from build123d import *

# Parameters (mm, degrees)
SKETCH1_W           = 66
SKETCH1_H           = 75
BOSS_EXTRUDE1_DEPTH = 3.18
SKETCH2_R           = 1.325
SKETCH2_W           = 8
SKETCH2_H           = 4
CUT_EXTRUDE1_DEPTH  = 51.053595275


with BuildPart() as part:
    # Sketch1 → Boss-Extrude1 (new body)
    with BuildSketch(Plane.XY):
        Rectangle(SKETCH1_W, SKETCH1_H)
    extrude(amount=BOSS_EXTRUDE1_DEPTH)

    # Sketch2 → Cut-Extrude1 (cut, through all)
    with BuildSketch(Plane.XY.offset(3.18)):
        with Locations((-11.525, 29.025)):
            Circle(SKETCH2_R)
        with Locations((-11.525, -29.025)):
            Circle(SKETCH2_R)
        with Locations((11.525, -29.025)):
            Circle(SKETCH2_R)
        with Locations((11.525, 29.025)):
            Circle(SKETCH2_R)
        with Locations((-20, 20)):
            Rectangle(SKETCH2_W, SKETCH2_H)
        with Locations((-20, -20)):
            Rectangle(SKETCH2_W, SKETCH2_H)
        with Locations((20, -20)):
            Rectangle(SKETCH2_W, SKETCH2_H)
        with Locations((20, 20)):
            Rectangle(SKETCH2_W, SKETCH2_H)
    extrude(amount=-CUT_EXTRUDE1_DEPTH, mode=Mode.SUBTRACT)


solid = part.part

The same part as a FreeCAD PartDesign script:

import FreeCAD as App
import Part
import Sketcher
from FreeCAD import Vector


def add_polygon(sketch, points):
    """Adds a closed chain of lines whose ends are joined by coincident constraints."""
    first, n = sketch.GeometryCount, len(points)
    for a, b in zip(points, points[1:] + points[:1]):
        sketch.addGeometry(Part.LineSegment(App.Vector(*a, 0), App.Vector(*b, 0)), False)
    for i in range(n):
        sketch.addConstraint(Sketcher.Constraint("Coincident", first + i, 2, first + (i + 1) % n, 1))

doc = App.newDocument("Part")
body = doc.addObject("PartDesign::Body", "Body")

sketch1 = doc.addObject("Sketcher::SketchObject", "Sketch")
body.addObject(sketch1)
sketch1.AttachmentSupport = (doc.XY_Plane, [""])
sketch1.MapMode = "FlatFace"
add_polygon(sketch1, [(-33, 38), (-33, -38), (33, -38), (33, 38)])
sketch1.addConstraint([
    Sketcher.Constraint("Vertical", 0),
    Sketcher.Constraint("Horizontal", 1),
    Sketcher.Constraint("Vertical", 2),
    Sketcher.Constraint("Horizontal", 3),
    Sketcher.Constraint("Symmetric", 0, 2, 2, 2, -1, 1),
    Sketcher.Constraint("DistanceX", 1, 1, 1, 2, 66.0),
    Sketcher.Constraint("DistanceY", 0, 2, 0, 1, 75.0),
])
pad1 = doc.addObject("PartDesign::Pad", "Pad")
body.addObject(pad1)
pad1.Profile = sketch1
pad1.Length = 3.18

sketch2 = doc.addObject("Sketcher::SketchObject", "Sketch001")
body.addObject(sketch2)
sketch2.AttachmentSupport = (doc.XY_Plane, [""])
sketch2.MapMode = "FlatFace"
sketch2.AttachmentOffset = App.Placement(Vector(0, 0, 3.18), App.Rotation())
sketch2.addGeometry(Part.Circle(Vector(-11.5, 29, 0), Vector(0, 0, 1), 1.3), False)
sketch2.addGeometry(Part.Circle(Vector(-11.5, -29, 0), Vector(0, 0, 1), 1.3), False)
sketch2.addGeometry(Part.Circle(Vector(11.5, -29, 0), Vector(0, 0, 1), 1.3), False)
sketch2.addGeometry(Part.Circle(Vector(11.5, 29, 0), Vector(0, 0, 1), 1.3), False)
add_polygon(sketch2, [(-24, 22), (-24, 18), (-16, 18), (-16, 22)])
add_polygon(sketch2, [(-24, -18), (-24, -22), (-16, -22), (-16, -18)])
add_polygon(sketch2, [(16, -18), (16, -22), (24, -22), (24, -18)])
add_polygon(sketch2, [(16, 22), (16, 18), (24, 18), (24, 22)])
sketch2.addConstraint([
    Sketcher.Constraint("Vertical", 4),
    Sketcher.Constraint("Horizontal", 5),
    Sketcher.Constraint("Vertical", 6),
    Sketcher.Constraint("Horizontal", 7),
    Sketcher.Constraint("Vertical", 8),
    Sketcher.Constraint("Horizontal", 9),
    Sketcher.Constraint("Vertical", 10),
    Sketcher.Constraint("Horizontal", 11),
    Sketcher.Constraint("Vertical", 12),
    Sketcher.Constraint("Horizontal", 13),
    Sketcher.Constraint("Vertical", 14),
    Sketcher.Constraint("Horizontal", 15),
    Sketcher.Constraint("Vertical", 16),
    Sketcher.Constraint("Horizontal", 17),
    Sketcher.Constraint("Vertical", 18),
    Sketcher.Constraint("Horizontal", 19),
    Sketcher.Constraint("Equal", 0, 1),
    Sketcher.Constraint("Equal", 1, 2),
    Sketcher.Constraint("Equal", 2, 3),
    Sketcher.Constraint("Symmetric", 0, 3, 2, 3, -1, 1),
    Sketcher.Constraint("Symmetric", 1, 3, 3, 3, -1, 1),
    Sketcher.Constraint("Symmetric", 6, 2, 12, 2, -1, 1),
    Sketcher.Constraint("Symmetric", 4, 2, 14, 2, -1, 1),
    Sketcher.Constraint("Symmetric", 10, 2, 16, 2, -1, 1),
    Sketcher.Constraint("Symmetric", 8, 2, 18, 2, -1, 1),
    Sketcher.Constraint("Symmetric", 1, 3, 2, 3, -2),
    Sketcher.Constraint("Symmetric", 9, 2, 12, 2, -2),
    Sketcher.Constraint("Symmetric", 11, 2, 14, 2, -2),
    Sketcher.Constraint("Diameter", 0, 2.65),
    Sketcher.Constraint("DistanceX", 5, 1, 5, 2, 8.0),
    Sketcher.Constraint("DistanceY", 4, 2, 4, 1, 4.0),
    Sketcher.Constraint("DistanceX", 4, 2, -1, 1, 24.0),
    Sketcher.Constraint("DistanceY", -1, 1, 4, 2, 18.0),
    Sketcher.Constraint("DistanceY", 1, 3, 0, 3, 58.05),
    Sketcher.Constraint("DistanceX", 1, 3, 2, 3, 23.05),
])
pocket1 = doc.addObject("PartDesign::Pocket", "Pocket")
body.addObject(pocket1)
pocket1.Profile = sketch2
pocket1.Type = "ThroughAll"

doc.recompute()
